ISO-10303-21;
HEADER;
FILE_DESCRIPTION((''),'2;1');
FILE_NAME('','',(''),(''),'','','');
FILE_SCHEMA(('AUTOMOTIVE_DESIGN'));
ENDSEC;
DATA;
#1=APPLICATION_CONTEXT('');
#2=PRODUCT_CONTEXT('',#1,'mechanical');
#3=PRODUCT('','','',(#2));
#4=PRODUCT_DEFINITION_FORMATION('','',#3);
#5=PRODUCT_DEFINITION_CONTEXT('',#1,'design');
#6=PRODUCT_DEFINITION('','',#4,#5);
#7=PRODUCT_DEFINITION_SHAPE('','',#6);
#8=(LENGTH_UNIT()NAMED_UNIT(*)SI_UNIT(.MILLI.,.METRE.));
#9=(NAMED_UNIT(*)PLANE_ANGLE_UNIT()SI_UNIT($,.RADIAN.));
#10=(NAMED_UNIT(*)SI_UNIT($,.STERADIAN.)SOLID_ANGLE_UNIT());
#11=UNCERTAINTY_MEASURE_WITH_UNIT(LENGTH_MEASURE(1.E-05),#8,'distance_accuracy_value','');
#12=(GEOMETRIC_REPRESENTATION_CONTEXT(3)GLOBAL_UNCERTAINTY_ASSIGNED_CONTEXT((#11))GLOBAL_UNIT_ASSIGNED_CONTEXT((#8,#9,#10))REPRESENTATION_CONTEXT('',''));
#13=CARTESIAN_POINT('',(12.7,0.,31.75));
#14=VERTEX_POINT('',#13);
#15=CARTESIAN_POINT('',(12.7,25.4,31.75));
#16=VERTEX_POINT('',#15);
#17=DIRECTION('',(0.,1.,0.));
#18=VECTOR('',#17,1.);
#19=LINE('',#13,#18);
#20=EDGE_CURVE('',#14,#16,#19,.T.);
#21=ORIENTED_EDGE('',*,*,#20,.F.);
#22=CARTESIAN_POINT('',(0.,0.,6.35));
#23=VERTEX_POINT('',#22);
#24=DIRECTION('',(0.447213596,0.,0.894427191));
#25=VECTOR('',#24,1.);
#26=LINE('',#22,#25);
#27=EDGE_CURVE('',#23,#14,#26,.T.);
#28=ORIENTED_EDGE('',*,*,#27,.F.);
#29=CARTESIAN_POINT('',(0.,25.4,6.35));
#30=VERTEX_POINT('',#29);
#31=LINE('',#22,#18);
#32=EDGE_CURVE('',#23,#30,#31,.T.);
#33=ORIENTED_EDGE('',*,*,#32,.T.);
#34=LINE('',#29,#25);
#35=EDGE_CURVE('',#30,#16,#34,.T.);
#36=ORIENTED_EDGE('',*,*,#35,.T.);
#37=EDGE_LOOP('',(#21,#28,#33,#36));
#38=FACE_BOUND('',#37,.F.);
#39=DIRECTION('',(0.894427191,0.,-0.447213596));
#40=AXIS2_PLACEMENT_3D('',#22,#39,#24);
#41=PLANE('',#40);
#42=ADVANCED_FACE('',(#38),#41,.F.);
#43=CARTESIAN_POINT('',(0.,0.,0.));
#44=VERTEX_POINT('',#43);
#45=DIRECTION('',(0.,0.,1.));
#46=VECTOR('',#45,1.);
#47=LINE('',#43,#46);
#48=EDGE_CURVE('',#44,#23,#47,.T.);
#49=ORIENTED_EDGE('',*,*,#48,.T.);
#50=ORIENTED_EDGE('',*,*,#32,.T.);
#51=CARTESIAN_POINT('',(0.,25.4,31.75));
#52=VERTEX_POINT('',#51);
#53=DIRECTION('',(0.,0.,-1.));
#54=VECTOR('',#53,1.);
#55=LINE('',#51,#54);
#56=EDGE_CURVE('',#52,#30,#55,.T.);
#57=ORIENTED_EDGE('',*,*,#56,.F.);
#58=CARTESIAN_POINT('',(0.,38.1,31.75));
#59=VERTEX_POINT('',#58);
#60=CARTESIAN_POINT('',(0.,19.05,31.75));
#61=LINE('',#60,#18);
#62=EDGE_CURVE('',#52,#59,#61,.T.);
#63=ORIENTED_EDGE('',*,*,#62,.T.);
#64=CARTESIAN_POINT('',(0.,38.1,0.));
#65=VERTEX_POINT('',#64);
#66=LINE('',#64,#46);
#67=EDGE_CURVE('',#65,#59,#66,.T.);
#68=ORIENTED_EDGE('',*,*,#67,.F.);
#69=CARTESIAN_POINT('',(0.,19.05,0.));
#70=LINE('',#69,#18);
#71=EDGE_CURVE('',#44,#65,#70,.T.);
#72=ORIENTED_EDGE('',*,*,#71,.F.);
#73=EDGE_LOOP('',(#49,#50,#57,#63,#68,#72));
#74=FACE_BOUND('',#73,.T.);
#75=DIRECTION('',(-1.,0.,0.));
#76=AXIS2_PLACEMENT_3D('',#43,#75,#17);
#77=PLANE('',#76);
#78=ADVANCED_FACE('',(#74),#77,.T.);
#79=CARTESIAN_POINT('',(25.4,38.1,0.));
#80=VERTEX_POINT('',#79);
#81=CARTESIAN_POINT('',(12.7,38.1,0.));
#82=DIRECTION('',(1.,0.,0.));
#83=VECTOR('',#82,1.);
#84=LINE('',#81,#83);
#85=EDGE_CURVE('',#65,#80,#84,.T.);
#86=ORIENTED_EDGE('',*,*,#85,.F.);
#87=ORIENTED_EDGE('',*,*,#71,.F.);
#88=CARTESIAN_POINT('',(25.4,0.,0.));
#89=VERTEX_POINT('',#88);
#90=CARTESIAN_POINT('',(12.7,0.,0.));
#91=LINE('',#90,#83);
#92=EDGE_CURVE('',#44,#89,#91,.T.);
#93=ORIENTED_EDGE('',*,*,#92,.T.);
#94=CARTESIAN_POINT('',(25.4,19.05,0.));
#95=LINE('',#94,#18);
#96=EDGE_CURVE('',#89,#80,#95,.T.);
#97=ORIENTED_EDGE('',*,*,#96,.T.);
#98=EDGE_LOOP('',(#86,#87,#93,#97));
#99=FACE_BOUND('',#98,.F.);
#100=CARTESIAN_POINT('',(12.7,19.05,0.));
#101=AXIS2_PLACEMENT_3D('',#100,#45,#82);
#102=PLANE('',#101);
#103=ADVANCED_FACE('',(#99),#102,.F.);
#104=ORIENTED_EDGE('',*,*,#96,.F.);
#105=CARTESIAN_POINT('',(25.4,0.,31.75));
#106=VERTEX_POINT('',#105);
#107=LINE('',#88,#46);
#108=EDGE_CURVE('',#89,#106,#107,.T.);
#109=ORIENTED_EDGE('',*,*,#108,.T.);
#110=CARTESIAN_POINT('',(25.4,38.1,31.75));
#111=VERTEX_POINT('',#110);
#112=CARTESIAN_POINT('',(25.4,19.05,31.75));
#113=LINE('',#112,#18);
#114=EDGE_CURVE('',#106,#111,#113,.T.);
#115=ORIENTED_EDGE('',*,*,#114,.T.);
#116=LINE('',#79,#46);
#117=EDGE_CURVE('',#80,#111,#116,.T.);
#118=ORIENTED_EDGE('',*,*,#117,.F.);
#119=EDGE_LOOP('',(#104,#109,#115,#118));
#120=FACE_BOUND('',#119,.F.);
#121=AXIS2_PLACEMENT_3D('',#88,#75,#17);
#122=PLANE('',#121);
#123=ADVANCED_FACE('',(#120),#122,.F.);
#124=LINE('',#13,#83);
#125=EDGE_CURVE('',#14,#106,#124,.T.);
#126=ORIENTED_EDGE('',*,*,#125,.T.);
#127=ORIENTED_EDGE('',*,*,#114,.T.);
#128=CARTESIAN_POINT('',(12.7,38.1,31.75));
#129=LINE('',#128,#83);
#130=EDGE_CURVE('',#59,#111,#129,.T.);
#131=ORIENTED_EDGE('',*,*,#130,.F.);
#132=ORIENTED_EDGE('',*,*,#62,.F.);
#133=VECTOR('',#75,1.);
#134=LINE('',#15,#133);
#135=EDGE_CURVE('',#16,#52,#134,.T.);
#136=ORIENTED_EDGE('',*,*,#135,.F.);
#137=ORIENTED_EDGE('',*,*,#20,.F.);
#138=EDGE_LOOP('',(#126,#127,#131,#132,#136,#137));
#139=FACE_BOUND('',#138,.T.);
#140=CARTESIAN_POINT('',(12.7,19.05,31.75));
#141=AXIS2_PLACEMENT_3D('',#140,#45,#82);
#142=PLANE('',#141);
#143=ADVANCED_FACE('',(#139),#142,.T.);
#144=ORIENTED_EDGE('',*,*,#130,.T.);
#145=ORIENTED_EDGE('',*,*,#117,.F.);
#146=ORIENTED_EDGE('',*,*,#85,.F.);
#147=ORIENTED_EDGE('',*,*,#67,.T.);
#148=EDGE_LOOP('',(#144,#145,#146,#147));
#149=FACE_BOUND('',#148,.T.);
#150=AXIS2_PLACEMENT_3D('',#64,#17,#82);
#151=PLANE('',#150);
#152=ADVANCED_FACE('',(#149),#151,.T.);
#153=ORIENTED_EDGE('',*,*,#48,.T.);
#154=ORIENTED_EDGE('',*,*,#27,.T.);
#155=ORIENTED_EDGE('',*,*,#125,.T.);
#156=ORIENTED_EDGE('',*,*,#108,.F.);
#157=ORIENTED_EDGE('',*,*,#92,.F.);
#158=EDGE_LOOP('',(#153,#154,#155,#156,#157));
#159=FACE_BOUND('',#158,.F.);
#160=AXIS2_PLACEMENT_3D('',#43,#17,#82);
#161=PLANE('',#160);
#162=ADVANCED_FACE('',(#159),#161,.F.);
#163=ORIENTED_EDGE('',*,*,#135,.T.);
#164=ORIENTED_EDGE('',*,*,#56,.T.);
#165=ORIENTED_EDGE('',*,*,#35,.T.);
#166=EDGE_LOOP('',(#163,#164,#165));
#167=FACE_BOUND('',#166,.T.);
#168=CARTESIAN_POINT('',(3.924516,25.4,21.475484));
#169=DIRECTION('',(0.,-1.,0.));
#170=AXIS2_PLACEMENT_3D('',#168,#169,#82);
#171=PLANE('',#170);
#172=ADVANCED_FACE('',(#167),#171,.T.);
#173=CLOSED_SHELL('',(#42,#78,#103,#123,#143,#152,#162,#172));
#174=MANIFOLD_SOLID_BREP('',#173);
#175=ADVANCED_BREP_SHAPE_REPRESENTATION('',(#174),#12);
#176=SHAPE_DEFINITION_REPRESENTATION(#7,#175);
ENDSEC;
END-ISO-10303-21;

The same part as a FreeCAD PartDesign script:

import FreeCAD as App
import Part
import Sketcher
Q = App.Units.Quantity


def add_polygon(sketch, points):
    """Adds a closed chain of lines whose ends are joined by coincident constraints."""
    first, n = sketch.GeometryCount, len(points)
    for a, b in zip(points, points[1:] + points[:1]):
        sketch.addGeometry(Part.LineSegment(App.Vector(*a, 0), App.Vector(*b, 0)), False)
    for i in range(n):
        sketch.addConstraint(Sketcher.Constraint("Coincident", first + i, 2, first + (i + 1) % n, 1))

doc = App.newDocument("Part")
body = doc.addObject("PartDesign::Body", "Body")

# Sketch on XY plane
sketch1 = body.newObject("Sketcher::SketchObject", "Sketch")
sketch1.AttachmentSupport = (doc.getObject("XY_Plane"), [""])
sketch1.MapMode = "FlatFace"
add_polygon(sketch1, [(0, 38), (0, 0), (25, 0), (25, 38)])  # lines 0-3
sketch1.addConstraint([
    Sketcher.Constraint("Vertical", 0),
    Sketcher.Constraint("Horizontal", 1),
    Sketcher.Constraint("Vertical", 2),
    Sketcher.Constraint("Horizontal", 3),
    Sketcher.Constraint("Coincident", 0, 2, -1, 1),
    Sketcher.Constraint("DistanceX", 1, 1, 1, 2, Q("1 in")),
    Sketcher.Constraint("DistanceY", 0, 2, 0, 1, Q("1.5 in")),
])
pad1 = body.newObject("PartDesign::Pad", "Pad")
pad1.Profile = sketch1
pad1.Length = Q("1.25 in")

# Sketch on XZ plane
sketch2 = body.newObject("Sketcher::SketchObject", "Sketch001")
sketch2.AttachmentSupport = (doc.getObject("XZ_Plane"), [""])
sketch2.MapMode = "FlatFace"
add_polygon(sketch2, [(0, 6), (13, 32), (0, 32)])  # lines 0-2
sketch2.addConstraint([
    Sketcher.Constraint("Horizontal", 1),
    Sketcher.Constraint("Vertical", 2),
    Sketcher.Constraint("PointOnObject", 1, 2, -2),
    Sketcher.Constraint("DistanceY", 2, 2, 2, 1, Q("1 in")),
    Sketcher.Constraint("DistanceX", 1, 2, 1, 1, Q("0.5 in")),
    Sketcher.Constraint("DistanceY", -1, 1, 0, 2, Q("1.25 in")),
])
pocket1 = body.newObject("PartDesign::Pocket", "Pocket")
pocket1.Profile = sketch2
pocket1.Length = Q("1 in")

doc.recompute()
